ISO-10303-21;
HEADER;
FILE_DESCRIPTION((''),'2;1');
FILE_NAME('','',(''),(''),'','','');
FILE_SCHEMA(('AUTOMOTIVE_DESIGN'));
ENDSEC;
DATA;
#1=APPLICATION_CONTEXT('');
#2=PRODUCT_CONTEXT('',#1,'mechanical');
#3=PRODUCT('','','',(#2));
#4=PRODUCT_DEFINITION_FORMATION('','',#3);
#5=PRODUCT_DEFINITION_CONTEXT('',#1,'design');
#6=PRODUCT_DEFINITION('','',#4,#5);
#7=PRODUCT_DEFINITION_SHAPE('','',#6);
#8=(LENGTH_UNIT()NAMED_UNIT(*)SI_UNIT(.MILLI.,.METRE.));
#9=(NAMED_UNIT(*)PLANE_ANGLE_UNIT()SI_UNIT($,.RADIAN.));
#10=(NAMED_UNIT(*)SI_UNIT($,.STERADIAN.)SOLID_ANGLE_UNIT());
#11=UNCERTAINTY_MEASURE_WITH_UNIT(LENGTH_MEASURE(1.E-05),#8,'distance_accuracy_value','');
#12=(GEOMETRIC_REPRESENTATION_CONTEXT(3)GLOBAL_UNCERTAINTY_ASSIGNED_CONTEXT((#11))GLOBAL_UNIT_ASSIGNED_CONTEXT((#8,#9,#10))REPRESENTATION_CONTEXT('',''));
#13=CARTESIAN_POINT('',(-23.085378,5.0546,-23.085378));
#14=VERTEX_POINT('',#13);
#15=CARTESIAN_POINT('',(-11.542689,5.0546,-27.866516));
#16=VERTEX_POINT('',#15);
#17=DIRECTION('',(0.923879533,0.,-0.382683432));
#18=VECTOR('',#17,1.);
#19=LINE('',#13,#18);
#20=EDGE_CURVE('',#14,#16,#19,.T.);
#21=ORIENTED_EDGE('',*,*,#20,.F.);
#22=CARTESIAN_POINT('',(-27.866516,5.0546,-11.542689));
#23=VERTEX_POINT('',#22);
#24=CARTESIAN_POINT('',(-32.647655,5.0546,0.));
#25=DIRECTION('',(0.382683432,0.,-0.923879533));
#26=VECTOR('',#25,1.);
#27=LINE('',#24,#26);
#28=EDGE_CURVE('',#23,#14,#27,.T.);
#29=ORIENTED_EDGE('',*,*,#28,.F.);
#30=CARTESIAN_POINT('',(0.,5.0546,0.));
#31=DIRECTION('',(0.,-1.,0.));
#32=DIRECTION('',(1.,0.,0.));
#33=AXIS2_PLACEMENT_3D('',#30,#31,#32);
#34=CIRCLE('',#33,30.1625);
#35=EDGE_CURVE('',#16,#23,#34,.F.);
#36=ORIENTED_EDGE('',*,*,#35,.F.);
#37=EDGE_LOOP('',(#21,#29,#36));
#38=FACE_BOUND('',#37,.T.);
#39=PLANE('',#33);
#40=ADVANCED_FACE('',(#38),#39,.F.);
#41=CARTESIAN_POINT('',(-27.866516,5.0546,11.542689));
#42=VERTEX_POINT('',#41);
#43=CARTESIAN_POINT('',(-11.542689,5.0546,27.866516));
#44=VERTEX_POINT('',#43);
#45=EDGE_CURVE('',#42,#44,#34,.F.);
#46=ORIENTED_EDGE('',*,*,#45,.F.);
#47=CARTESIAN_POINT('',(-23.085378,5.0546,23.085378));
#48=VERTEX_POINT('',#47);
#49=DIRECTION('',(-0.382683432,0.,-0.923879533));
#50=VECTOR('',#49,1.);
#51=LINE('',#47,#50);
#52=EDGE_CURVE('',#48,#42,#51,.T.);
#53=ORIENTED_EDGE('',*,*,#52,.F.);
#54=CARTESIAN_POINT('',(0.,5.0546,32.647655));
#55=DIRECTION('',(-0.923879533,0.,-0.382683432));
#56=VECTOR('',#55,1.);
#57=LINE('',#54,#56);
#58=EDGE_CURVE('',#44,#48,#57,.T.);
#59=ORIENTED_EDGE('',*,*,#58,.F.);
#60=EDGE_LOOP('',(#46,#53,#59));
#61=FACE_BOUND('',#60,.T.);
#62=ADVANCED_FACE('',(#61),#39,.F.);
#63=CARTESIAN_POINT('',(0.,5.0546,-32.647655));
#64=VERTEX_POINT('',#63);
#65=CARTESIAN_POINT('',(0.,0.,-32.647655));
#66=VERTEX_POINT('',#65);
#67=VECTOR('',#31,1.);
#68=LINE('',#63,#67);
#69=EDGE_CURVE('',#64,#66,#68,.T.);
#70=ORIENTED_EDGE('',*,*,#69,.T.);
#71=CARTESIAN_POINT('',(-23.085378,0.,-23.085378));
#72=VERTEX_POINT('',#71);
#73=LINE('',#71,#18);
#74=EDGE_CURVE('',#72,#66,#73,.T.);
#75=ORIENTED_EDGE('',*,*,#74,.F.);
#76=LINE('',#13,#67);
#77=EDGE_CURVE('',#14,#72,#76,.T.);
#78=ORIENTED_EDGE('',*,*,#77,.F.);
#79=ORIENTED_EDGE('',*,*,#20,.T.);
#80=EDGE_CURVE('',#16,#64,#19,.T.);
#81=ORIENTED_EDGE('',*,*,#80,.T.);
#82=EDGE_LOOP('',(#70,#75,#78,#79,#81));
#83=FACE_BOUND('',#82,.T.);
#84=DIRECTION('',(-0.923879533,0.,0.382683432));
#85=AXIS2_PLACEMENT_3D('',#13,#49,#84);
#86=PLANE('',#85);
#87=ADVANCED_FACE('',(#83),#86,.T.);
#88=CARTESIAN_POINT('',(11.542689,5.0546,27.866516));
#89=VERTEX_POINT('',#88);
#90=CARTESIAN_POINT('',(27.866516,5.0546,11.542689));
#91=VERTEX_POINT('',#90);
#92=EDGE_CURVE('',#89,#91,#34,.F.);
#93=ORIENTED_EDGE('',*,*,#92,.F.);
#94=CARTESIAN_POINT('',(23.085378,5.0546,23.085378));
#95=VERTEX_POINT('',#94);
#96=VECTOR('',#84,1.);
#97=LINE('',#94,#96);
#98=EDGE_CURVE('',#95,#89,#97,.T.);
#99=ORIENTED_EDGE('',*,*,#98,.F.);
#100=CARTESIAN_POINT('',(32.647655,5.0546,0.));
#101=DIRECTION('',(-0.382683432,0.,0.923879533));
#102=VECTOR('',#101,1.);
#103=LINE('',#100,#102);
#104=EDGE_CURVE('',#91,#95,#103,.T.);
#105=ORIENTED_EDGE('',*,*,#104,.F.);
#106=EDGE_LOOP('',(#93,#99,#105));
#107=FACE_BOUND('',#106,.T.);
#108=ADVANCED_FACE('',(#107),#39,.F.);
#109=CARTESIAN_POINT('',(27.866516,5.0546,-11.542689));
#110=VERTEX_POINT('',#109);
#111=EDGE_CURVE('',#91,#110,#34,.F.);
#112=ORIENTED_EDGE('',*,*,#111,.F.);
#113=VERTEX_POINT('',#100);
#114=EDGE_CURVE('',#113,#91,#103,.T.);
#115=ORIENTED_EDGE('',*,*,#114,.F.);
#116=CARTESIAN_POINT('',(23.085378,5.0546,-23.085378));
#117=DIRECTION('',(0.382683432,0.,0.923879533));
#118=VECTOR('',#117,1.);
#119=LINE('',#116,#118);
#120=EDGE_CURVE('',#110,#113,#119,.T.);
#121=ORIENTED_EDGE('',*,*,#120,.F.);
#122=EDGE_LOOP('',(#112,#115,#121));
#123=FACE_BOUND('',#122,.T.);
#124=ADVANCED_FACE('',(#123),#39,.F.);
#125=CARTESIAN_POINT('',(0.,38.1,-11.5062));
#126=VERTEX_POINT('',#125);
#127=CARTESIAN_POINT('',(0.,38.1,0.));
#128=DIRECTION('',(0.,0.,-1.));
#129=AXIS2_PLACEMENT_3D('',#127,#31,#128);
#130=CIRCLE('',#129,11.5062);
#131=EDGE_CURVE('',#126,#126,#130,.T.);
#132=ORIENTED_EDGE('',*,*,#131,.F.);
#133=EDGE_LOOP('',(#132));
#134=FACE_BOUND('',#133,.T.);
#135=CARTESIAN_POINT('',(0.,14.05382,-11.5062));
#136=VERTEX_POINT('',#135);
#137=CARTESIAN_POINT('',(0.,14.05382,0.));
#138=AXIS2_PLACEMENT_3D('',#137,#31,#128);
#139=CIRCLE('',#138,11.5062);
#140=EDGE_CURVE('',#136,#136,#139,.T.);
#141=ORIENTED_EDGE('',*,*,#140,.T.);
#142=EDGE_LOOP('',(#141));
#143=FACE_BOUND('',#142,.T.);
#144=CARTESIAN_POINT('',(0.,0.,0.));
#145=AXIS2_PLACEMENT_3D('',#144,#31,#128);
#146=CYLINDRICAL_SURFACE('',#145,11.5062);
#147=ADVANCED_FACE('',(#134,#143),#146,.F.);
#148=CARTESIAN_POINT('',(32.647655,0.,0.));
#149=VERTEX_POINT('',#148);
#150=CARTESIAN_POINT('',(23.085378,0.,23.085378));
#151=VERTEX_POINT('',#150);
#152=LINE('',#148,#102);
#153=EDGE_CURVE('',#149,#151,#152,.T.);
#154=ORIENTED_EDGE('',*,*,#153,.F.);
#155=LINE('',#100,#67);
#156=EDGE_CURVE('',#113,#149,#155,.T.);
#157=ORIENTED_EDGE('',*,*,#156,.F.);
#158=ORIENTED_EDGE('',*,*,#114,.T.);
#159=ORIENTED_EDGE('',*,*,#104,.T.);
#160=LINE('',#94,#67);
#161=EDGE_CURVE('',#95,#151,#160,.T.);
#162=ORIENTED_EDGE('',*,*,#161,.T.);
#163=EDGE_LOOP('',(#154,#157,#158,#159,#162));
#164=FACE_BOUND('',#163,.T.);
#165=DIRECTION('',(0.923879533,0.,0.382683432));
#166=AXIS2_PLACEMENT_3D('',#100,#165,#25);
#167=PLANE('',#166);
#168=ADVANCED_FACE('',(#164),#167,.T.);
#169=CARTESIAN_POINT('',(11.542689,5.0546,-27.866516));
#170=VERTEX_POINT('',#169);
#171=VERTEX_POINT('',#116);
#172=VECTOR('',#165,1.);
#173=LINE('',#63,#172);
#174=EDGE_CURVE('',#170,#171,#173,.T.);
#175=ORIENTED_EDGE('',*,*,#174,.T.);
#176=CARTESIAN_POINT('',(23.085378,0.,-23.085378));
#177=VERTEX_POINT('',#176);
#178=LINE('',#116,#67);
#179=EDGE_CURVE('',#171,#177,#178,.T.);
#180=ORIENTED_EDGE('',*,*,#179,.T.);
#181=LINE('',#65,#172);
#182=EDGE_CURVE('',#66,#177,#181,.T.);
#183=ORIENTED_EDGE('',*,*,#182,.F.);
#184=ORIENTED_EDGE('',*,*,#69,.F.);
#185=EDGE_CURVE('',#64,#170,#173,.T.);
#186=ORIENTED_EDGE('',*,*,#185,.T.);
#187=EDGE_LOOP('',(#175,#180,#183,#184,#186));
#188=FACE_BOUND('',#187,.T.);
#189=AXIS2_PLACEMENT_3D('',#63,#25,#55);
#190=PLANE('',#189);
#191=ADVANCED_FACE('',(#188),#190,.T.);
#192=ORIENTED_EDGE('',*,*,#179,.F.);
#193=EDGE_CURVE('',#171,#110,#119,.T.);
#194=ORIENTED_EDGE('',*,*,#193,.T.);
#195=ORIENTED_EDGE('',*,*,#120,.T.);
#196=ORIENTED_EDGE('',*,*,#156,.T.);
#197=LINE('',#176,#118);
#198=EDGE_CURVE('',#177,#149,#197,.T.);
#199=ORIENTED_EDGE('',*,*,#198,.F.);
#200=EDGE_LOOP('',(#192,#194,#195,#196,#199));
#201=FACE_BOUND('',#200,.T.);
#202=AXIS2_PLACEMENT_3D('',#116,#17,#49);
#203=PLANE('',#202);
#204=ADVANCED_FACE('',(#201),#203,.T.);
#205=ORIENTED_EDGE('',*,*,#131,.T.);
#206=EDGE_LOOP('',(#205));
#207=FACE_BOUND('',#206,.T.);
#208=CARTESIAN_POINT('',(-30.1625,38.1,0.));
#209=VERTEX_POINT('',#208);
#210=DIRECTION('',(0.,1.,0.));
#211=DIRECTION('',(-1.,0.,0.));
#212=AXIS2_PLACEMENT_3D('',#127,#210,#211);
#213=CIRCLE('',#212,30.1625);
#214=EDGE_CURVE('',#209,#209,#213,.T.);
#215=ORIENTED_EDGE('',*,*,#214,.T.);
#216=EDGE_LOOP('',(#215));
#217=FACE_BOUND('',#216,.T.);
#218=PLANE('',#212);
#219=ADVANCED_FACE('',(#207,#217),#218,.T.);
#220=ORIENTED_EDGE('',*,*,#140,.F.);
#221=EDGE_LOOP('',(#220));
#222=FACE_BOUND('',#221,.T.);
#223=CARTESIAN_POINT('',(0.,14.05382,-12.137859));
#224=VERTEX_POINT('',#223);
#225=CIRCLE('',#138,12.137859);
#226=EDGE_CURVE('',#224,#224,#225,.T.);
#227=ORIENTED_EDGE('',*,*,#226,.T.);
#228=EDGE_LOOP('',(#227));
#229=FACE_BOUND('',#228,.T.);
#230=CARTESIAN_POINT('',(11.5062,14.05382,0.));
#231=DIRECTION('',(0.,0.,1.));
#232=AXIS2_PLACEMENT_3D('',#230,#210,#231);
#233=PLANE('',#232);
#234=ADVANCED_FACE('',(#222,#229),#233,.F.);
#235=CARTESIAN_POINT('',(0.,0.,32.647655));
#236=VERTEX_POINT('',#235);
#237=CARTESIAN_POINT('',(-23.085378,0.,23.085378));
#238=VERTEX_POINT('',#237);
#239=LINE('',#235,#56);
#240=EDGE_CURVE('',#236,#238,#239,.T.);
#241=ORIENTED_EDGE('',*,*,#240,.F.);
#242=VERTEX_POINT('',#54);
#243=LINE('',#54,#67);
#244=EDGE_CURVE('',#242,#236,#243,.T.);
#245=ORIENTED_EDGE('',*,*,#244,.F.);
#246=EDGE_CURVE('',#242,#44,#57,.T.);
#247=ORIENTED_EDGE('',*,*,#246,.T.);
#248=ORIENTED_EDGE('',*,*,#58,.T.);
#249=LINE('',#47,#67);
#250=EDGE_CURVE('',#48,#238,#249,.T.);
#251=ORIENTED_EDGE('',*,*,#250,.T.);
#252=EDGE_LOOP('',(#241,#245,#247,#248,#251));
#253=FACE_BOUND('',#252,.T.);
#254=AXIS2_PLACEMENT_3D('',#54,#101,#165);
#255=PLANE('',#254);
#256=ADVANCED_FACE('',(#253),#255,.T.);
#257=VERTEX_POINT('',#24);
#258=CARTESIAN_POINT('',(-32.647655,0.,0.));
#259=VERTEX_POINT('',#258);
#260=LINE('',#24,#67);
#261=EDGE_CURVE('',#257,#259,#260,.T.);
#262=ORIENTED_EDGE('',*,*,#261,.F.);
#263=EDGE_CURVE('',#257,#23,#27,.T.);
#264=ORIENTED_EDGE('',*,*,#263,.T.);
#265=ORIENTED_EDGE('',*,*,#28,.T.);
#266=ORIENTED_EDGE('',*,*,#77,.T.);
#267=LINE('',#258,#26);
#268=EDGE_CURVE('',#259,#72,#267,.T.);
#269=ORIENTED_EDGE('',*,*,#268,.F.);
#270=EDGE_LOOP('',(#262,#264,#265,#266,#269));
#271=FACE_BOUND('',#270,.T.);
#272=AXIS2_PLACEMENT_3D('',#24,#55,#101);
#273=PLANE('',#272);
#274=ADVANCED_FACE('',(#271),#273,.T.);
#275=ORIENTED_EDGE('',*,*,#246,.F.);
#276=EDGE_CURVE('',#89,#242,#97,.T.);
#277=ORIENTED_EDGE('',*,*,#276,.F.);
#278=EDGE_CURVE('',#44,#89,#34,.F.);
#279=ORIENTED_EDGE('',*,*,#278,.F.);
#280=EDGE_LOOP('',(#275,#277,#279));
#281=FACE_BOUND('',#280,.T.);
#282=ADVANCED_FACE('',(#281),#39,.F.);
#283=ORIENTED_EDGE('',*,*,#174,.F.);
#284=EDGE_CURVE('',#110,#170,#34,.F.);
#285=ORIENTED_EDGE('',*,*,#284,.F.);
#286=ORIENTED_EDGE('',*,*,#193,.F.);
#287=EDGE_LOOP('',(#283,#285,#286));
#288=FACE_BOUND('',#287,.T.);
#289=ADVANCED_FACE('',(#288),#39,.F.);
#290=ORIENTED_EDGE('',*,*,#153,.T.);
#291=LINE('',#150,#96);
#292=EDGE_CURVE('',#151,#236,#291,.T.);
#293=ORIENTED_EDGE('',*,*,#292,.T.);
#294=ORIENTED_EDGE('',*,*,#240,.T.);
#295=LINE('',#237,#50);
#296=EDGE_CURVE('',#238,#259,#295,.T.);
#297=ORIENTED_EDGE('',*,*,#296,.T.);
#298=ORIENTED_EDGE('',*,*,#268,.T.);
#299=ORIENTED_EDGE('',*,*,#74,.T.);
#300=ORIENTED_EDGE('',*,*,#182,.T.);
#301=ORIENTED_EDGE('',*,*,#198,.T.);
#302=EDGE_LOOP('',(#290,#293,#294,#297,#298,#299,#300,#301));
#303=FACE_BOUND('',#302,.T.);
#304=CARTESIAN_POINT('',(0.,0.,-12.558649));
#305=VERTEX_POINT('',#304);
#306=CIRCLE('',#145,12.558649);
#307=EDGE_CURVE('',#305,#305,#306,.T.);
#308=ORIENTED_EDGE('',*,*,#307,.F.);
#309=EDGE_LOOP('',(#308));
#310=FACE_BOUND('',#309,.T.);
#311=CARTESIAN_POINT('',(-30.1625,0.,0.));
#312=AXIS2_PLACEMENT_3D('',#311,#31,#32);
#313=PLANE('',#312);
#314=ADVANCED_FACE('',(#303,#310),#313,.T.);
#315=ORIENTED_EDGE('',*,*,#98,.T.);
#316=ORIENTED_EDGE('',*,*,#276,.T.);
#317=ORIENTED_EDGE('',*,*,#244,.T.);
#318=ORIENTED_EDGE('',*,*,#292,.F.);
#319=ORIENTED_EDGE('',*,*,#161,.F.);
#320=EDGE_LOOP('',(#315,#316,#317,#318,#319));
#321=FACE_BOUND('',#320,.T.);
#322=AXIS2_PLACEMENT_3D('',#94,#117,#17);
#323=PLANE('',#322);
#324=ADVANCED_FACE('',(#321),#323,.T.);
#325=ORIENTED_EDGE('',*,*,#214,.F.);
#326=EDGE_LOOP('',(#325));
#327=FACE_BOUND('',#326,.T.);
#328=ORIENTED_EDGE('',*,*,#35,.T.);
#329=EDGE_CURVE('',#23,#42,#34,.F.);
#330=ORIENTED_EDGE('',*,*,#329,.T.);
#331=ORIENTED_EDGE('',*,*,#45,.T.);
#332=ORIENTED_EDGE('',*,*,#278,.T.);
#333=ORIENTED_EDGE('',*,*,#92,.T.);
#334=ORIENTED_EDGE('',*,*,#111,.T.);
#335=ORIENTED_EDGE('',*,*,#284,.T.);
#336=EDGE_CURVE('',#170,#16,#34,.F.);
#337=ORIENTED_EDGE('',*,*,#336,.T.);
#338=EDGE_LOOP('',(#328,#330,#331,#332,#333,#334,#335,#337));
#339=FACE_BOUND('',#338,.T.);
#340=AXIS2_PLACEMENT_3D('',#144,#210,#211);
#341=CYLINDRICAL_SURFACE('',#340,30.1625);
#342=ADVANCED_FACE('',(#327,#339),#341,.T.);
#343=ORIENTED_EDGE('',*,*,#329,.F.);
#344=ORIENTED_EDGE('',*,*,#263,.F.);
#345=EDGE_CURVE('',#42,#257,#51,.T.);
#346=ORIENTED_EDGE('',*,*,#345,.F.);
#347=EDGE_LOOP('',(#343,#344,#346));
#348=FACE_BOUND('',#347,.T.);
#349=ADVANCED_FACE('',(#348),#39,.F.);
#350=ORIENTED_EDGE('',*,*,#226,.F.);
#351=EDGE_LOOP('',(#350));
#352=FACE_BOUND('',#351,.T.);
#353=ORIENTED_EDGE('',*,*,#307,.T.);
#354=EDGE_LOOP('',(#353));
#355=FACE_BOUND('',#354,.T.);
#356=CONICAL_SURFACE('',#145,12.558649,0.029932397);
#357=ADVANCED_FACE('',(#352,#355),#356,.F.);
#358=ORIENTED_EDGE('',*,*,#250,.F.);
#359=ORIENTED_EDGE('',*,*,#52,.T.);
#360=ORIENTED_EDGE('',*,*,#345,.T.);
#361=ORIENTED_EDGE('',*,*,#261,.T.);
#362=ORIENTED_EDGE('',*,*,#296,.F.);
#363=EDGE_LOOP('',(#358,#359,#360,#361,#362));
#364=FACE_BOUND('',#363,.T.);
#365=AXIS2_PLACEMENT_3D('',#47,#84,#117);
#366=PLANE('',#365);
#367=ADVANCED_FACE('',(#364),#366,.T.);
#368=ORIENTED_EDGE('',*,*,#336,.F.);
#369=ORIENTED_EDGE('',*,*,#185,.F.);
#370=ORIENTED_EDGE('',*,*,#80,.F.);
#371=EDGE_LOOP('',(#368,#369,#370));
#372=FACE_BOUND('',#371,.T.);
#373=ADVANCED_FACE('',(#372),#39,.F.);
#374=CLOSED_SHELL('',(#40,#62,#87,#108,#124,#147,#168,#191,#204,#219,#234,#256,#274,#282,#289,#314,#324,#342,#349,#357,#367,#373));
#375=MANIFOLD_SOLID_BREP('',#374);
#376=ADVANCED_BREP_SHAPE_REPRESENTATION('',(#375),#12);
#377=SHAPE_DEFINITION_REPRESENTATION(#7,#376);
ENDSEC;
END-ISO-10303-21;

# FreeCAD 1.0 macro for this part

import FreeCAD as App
import Part
import Sketcher

V = App.Vector
Q = App.Units.Quantity

doc = App.newDocument("Part")
body = doc.addObject("PartDesign::Body", "Body")

sketch1 = doc.addObject("Sketcher::SketchObject", "Sketch")
body.addObject(sketch1)
sketch1.AttachmentSupport = (doc.XY_Plane, [""])
sketch1.MapMode = "FlatFace"
sketch1.addGeometry([
    Part.LineSegment(V(-30, 38, 0), V(-30, 0, 0)),
    Part.LineSegment(V(-30, 0, 0), V(0, 0, 0)),
    Part.LineSegment(V(0, 0, 0), V(0, 38, 0)),
    Part.LineSegment(V(0, 38, 0), V(-30, 38, 0)),
], False)
sketch1.addConstraint([
    Sketcher.Constraint("Coincident", 0, 2, 1, 1),
    Sketcher.Constraint("Coincident", 1, 2, 2, 1),
    Sketcher.Constraint("Coincident", 2, 2, 3, 1),
    Sketcher.Constraint("Coincident", 3, 2, 0, 1),
    Sketcher.Constraint("Vertical", 0),
    Sketcher.Constraint("Horizontal", 1),
    Sketcher.Constraint("Vertical", 2),
    Sketcher.Constraint("Horizontal", 3),
    Sketcher.Constraint("Coincident", 1, 2, -1, 1),
    Sketcher.Constraint("DistanceY", 0, 2, 0, 1, Q("1.5 in")),
    Sketcher.Constraint("DistanceX", 1, 1, 1, 2, Q("1.1875 in")),
])
revolution = doc.addObject("PartDesign::Revolution", "Revolution")
body.addObject(revolution)
revolution.Profile = sketch1
revolution.ReferenceAxis = (sketch1, ["V_Axis"])
revolution.Angle = 360

sketch2 = doc.addObject("Sketcher::SketchObject", "Sketch001")
body.addObject(sketch2)
sketch2.AttachmentSupport = (doc.XZ_Plane, [""])
sketch2.MapMode = "FlatFace"
sketch2.addGeometry([
    Part.LineSegment(V(0, 33, 0), V(-23, 23, 0)),
    Part.LineSegment(V(-23, 23, 0), V(-33, 0, 0)),
    Part.LineSegment(V(-33, 0, 0), V(-23, -23, 0)),
    Part.LineSegment(V(-23, -23, 0), V(0, -33, 0)),
    Part.LineSegment(V(0, -33, 0), V(23, -23, 0)),
    Part.LineSegment(V(23, -23, 0), V(33, 0, 0)),
    Part.LineSegment(V(33, 0, 0), V(23, 23, 0)),
    Part.LineSegment(V(23, 23, 0), V(0, 33, 0)),
], False)
sketch2.addConstraint([
    Sketcher.Constraint("Coincident", 0, 2, 1, 1),
    Sketcher.Constraint("Coincident", 1, 2, 2, 1),
    Sketcher.Constraint("Coincident", 2, 2, 3, 1),
    Sketcher.Constraint("Coincident", 3, 2, 4, 1),
    Sketcher.Constraint("Coincident", 4, 2, 5, 1),
    Sketcher.Constraint("Coincident", 5, 2, 6, 1),
    Sketcher.Constraint("Coincident", 6, 2, 7, 1),
    Sketcher.Constraint("Coincident", 7, 2, 0, 1),
    Sketcher.Constraint("Symmetric", 0, 2, 4, 2, -1, 1),
    Sketcher.Constraint("Symmetric", 1, 2, 5, 2, -1, 1),
    Sketcher.Constraint("Symmetric", 2, 2, 6, 2, -1, 1),
    Sketcher.Constraint("Symmetric", 3, 2, 7, 2, -1, 1),
    Sketcher.Constraint("Symmetric", 2, 2, 4, 2, -2),
    Sketcher.Constraint("PointOnObject", 1, 2, -1),
    Sketcher.Constraint("PointOnObject", 3, 2, -2),
    Sketcher.Constraint("Perpendicular", 0, 2),
    Sketcher.Constraint("Equal", 0, 1),
    Sketcher.Constraint("Angle", 0, Q("-157.5 deg")),
    Sketcher.Constraint("DistanceX", 0, 2, -1, 1, Q("23.085378 mm")),
])
pad1 = doc.addObject("PartDesign::Pad", "Pad")
body.addObject(pad1)
pad1.Profile = sketch2
pad1.Length = Q("0.199 in")
pad1.Reversed = True

sketch3 = doc.addObject("Sketcher::SketchObject", "Sketch002")
body.addObject(sketch3)
sketch3.AttachmentSupport = (doc.YZ_Plane, [""])
sketch3.MapMode = "FlatFace"
sketch3.addGeometry([
    Part.LineSegment(V(38.1, 0, 0), V(0, 0, 0)),
    Part.LineSegment(V(0, 0, 0), V(0, -12.6, 0)),
    Part.LineSegment(V(0, -12.6, 0), V(14.1, -12.1, 0)),
    Part.LineSegment(V(14.1, -12.1, 0), V(14.1, -11.5, 0)),
    Part.LineSegment(V(14.1, -11.5, 0), V(38.1, -11.5, 0)),
    Part.LineSegment(V(38.1, -11.5, 0), V(38.1, 0, 0)),
], False)
sketch3.addConstraint([
    Sketcher.Constraint("Coincident", 0, 2, 1, 1),
    Sketcher.Constraint("Coincident", 1, 2, 2, 1),
    Sketcher.Constraint("Coincident", 2, 2, 3, 1),
    Sketcher.Constraint("Coincident", 3, 2, 4, 1),
    Sketcher.Constraint("Coincident", 4, 2, 5, 1),
    Sketcher.Constraint("Coincident", 5, 2, 0, 1),
    Sketcher.Constraint("Horizontal", 0),
    Sketcher.Constraint("Vertical", 1),
    Sketcher.Constraint("Vertical", 3),
    Sketcher.Constraint("Horizontal", 4),
    Sketcher.Constraint("Vertical", 5),
    Sketcher.Constraint("Coincident", 0, 2, -1, 1),
    Sketcher.Constraint("DistanceX", 0, 2, 0, 1, Q("1.5 in")),
    Sketcher.Constraint("DistanceY", 5, 1, 5, 2, Q("0.453 in")),
    Sketcher.Constraint("DistanceX", 4, 1, 4, 2, Q("0.9467 in")),
    Sketcher.Constraint("DistanceY", 1, 2, 1, 1, Q("12.558649 mm")),
    Sketcher.Constraint("DistanceY", 3, 1, 3, 2, Q("0.631659 mm")),
])
groove = doc.addObject("PartDesign::Groove", "Groove")
body.addObject(groove)
groove.Profile = sketch3
groove.ReferenceAxis = (sketch3, ["H_Axis"])
groove.Angle = 360

doc.recompute()
